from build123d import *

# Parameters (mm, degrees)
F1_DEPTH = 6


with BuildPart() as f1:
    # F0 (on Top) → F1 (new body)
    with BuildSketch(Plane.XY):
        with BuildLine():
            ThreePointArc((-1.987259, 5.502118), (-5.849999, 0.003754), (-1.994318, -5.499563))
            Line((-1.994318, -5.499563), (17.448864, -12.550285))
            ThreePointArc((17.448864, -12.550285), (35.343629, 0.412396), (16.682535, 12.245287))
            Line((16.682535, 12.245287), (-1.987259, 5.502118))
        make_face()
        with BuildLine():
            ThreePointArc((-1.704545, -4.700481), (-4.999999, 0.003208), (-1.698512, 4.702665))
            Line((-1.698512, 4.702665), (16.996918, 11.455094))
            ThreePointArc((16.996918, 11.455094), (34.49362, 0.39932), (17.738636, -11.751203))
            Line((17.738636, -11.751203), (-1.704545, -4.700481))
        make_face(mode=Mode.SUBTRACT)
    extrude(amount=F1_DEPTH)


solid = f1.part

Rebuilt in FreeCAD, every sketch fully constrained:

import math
import FreeCAD as App
import Part
import Sketcher

V = App.Vector

doc = App.newDocument("Part")
body = doc.addObject("PartDesign::Body", "Body")

# Sketch on XY plane
sketch1 = doc.addObject("Sketcher::SketchObject", "Sketch")
body.addObject(sketch1)
sketch1.AttachmentSupport = (doc.XY_Plane, [""])
sketch1.MapMode = "FlatFace"
sketch1.addGeometry(Part.ArcOfCircle(Part.Circle(V(0, 0, 0), V(0, 0, 1), 5.85), math.radians(109.85874), math.radians(250.067735)), False)
sketch1.addGeometry(Part.LineSegment(V(-1.994318, -5.499563, 0), V(17.448864, -12.550285, 0)), False)
sketch1.addGeometry(Part.ArcOfCircle(Part.Circle(V(22, 0, 0), V(0, 0, 1), 13.35), math.radians(-109.932271), math.radians(113.472697)), False)
sketch1.addGeometry(Part.LineSegment(V(16.682535, 12.245287, 0), V(-1.987259, 5.502118, 0)), False)
sketch1.addGeometry(Part.LineSegment(V(17.738636, -11.751203, 0), V(-1.704545, -4.700481, 0)), False)
sketch1.addGeometry(Part.ArcOfCircle(Part.Circle(V(0, 0, 0), V(0, 0, 1), 5), math.radians(109.858741), math.radians(250.067738)), False)
sketch1.addGeometry(Part.LineSegment(V(-1.698512, 4.702665, 0), V(16.996918, 11.455094, 0)), False)
sketch1.addGeometry(Part.ArcOfCircle(Part.Circle(V(22, 0, 0), V(0, 0, 1), 12.5), math.radians(-109.932272), math.radians(113.593592)), False)
sketch1.addConstraint(Sketcher.Constraint("Coincident", 0, 2, 1, 1))
sketch1.addConstraint(Sketcher.Constraint("Coincident", 1, 2, 2, 1))
sketch1.addConstraint(Sketcher.Constraint("Coincident", 2, 2, 3, 1))
sketch1.addConstraint(Sketcher.Constraint("Coincident", 3, 2, 0, 1))
sketch1.addConstraint(Sketcher.Constraint("Coincident", 4, 2, 5, 2))
sketch1.addConstraint(Sketcher.Constraint("Coincident", 5, 1, 6, 1))
sketch1.addConstraint(Sketcher.Constraint("Coincident", 6, 2, 7, 2))
sketch1.addConstraint(Sketcher.Constraint("Coincident", 7, 1, 4, 1))
sketch1.addConstraint(Sketcher.Constraint("Coincident", 0, 3, -1, 1))
sketch1.addConstraint(Sketcher.Constraint("Coincident", 5, 3, -1, 1))
sketch1.addConstraint(Sketcher.Constraint("Coincident", 7, 3, 2, 3))
sketch1.addConstraint(Sketcher.Constraint("PointOnObject", 2, 3, -1))
sketch1.addConstraint(Sketcher.Constraint("Radius", 5, 5.0))
sketch1.addConstraint(Sketcher.Constraint("Radius", 7, 12.5))
sketch1.addConstraint(Sketcher.Constraint("Radius", 0, 5.85))
sketch1.addConstraint(Sketcher.Constraint("Radius", 2, 13.35))
sketch1.addConstraint(Sketcher.Constraint("DistanceX", -1, 1, 2, 3, 22.0))
sketch1.addConstraint(Sketcher.Constraint("DistanceY", 4, 2, 3, 2, 10.202599))
sketch1.addConstraint(Sketcher.Constraint("Distance", 1, 20.682118))
sketch1.addConstraint(Sketcher.Constraint("DistanceX", 0, 2, -1, 1, 1.994318))
sketch1.addConstraint(Sketcher.Constraint("DistanceX", 3, 2, -1, 1, 1.987259))
sketch1.addConstraint(Sketcher.Constraint("DistanceX", 5, 1, -1, 1, 1.698512))
sketch1.addConstraint(Sketcher.Constraint("DistanceX", -1, 1, 6, 2, 16.996918))
sketch1.addConstraint(Sketcher.Constraint("DistanceX", 2, 2, 1, 2, 0.766329))
sketch1.addConstraint(Sketcher.Constraint("DistanceX", 4, 2, 7, 1, 19.443181))
pad1 = doc.addObject("PartDesign::Pad", "Pad")
body.addObject(pad1)
pad1.Profile = sketch1
pad1.Length = 6

doc.recompute()
